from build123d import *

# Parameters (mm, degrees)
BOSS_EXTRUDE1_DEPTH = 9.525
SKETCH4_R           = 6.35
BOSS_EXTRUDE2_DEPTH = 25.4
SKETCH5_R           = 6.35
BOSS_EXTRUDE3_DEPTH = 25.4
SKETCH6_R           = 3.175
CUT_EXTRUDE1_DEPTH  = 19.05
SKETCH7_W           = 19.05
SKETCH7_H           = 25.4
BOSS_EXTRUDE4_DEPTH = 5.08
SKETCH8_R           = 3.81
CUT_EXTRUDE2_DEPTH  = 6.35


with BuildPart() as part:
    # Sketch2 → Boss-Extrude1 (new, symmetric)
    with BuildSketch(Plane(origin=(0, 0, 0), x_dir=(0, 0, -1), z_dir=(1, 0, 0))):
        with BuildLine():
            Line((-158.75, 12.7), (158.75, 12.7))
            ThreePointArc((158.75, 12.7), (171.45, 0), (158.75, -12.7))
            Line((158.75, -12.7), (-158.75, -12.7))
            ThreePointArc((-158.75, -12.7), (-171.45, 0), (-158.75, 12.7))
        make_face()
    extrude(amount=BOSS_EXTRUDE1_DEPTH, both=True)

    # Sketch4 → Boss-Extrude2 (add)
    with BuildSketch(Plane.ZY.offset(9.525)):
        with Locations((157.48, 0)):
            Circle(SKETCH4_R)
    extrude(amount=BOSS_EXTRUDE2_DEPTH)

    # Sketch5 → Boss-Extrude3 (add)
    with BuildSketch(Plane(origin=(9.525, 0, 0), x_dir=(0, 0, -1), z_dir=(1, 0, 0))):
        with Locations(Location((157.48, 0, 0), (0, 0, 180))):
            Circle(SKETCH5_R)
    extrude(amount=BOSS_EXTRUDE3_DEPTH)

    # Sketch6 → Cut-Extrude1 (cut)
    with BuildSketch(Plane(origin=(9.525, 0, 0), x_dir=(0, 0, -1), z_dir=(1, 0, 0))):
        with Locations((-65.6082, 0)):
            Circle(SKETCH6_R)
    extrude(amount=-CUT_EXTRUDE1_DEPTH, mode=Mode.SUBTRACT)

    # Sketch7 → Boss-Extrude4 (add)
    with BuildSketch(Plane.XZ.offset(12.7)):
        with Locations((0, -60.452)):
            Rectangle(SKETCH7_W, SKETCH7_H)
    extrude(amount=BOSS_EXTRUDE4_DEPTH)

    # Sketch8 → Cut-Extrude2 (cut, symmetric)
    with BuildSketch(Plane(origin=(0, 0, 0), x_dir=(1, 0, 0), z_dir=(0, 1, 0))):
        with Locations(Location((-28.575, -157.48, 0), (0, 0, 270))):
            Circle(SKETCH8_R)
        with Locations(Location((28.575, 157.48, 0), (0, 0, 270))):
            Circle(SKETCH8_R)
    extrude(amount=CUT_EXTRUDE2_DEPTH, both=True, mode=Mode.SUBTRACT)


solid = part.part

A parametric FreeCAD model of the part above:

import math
import FreeCAD as App
import Part
import Sketcher

V = App.Vector
Q = App.Units.Quantity


def add_polygon(sketch, points):
    """Adds a closed chain of lines whose ends are joined by coincident constraints."""
    first, n = sketch.GeometryCount, len(points)
    for a, b in zip(points, points[1:] + points[:1]):
        sketch.addGeometry(Part.LineSegment(App.Vector(*a, 0), App.Vector(*b, 0)), False)
    for i in range(n):
        sketch.addConstraint(Sketcher.Constraint("Coincident", first + i, 2, first + (i + 1) % n, 1))

doc = App.newDocument("Part")
params = doc.addObject("Spreadsheet::Sheet", "Params")
for row, (alias, value) in enumerate([
    ("sketch1_radius", "0.5 in"),
    ("sketch1_height", "12.5 in"),
    ("pad1_length", "0.75 in"),
    ("sketch2_diameter", "0.5 in"),
    ("pad2_length", "1 in"),
    ("sketch3_diameter", "0.5 in"),
    ("pad3_length", "1 in"),
    ("sketch4_diameter", "0.25 in"),
    ("pocket1_length", "0.75 in"),
    ("sketch5_height", "1 in"),
    ("sketch5_width", "0.75 in"),
    ("pad4_length", "0.2 in"),
    ("sketch6_diameter", "0.3 in"),
    ("pocket2_length", "0.5 in"),
], start=1):
    params.set(f"A{row}", alias)
    params.set(f"B{row}", "=" + value)
    params.setAlias(f"B{row}", alias)

body = doc.addObject("PartDesign::Body", "Body")

sketch1 = body.newObject("Sketcher::SketchObject", "Sketch")
sketch1.AttachmentSupport = (doc.getObject("YZ_Plane"), [""])
sketch1.MapMode = "FlatFace"
sketch1.addGeometry([
    Part.LineSegment(V(13, -159, 0), V(13, 159, 0)),
    Part.ArcOfCircle(Part.Circle(V(0, 159, 0), V(0, 0, 1), 13), math.radians(0), math.radians(180)),
    Part.LineSegment(V(-13, 159, 0), V(-13, -159, 0)),
    Part.ArcOfCircle(Part.Circle(V(0, -159, 0), V(0, 0, 1), 13), math.radians(180), math.radians(360)),
], False)
sketch1.addConstraint([
    Sketcher.Constraint("Tangent", 0, 2, 1, 1),
    Sketcher.Constraint("Tangent", 1, 2, 2, 1),
    Sketcher.Constraint("Tangent", 2, 2, 3, 1),
    Sketcher.Constraint("Tangent", 3, 2, 0, 1),
    Sketcher.Constraint("Vertical", 0),
    Sketcher.Constraint("Vertical", 2),
    Sketcher.Constraint("Symmetric", 1, 3, 3, 3, -1, 1),
    Sketcher.Constraint("Radius", 1, Q("0.5 in")),
    Sketcher.Constraint("DistanceY", 0, 1, 0, 2, Q("12.5 in")),
])
sketch1.setExpression("Constraints[7]", "Params.sketch1_radius")
sketch1.setExpression("Constraints[8]", "Params.sketch1_height")
pad1 = body.newObject("PartDesign::Pad", "Pad")
pad1.Profile = sketch1
pad1.setExpression("Length", "Params.pad1_length")
pad1.Midplane = True

sketch2 = body.newObject("Sketcher::SketchObject", "Sketch001")
sketch2.AttachmentSupport = (doc.getObject("YZ_Plane"), [""])
sketch2.MapMode = "FlatFace"
sketch2.AttachmentOffset = App.Placement(V(0, 0, -0.375 * 25.4), App.Rotation())
sketch2.addGeometry(Part.Circle(V(0, 157, 0), V(0, 0, 1), 6), False)
sketch2.addConstraint([
    Sketcher.Constraint("PointOnObject", 0, 3, -2),
    Sketcher.Constraint("Diameter", 0, Q("0.5 in")),
    Sketcher.Constraint("DistanceY", -1, 1, 0, 3, Q("6.2 in")),
])
sketch2.setExpression("Constraints[1]", "Params.sketch2_diameter")
pad2 = body.newObject("PartDesign::Pad", "Pad001")
pad2.Profile = sketch2
pad2.setExpression("Length", "Params.pad2_length")
pad2.Reversed = True

sketch3 = body.newObject("Sketcher::SketchObject", "Sketch002")
sketch3.AttachmentSupport = (doc.getObject("YZ_Plane"), [""])
sketch3.MapMode = "FlatFace"
sketch3.AttachmentOffset = App.Placement(V(0, 0, 0.375 * 25.4), App.Rotation())
sketch3.addGeometry(Part.Circle(V(0, -157, 0), V(0, 0, 1), 6), False)
sketch3.addConstraint([
    Sketcher.Constraint("PointOnObject", 0, 3, -2),
    Sketcher.Constraint("Diameter", 0, Q("0.5 in")),
    Sketcher.Constraint("DistanceY", 0, 3, -1, 1, Q("6.2 in")),
])
sketch3.setExpression("Constraints[1]", "Params.sketch3_diameter")
pad3 = body.newObject("PartDesign::Pad", "Pad002")
pad3.Profile = sketch3
pad3.setExpression("Length", "Params.pad3_length")

sketch4 = body.newObject("Sketcher::SketchObject", "Sketch003")
sketch4.AttachmentSupport = (doc.getObject("YZ_Plane"), [""])
sketch4.MapMode = "FlatFace"
sketch4.AttachmentOffset = App.Placement(V(0, 0, 0.375 * 25.4), App.Rotation())
sketch4.addGeometry(Part.Circle(V(0, 65.6, 0), V(0, 0, 1), 3.2), False)
sketch4.addConstraint([
    Sketcher.Constraint("PointOnObject", 0, 3, -2),
    Sketcher.Constraint("Diameter", 0, Q("0.25 in")),
    Sketcher.Constraint("DistanceY", -1, 1, 0, 3, Q("2.583 in")),
])
sketch4.setExpression("Constraints[1]", "Params.sketch4_diameter")
pocket1 = body.newObject("PartDesign::Pocket", "Pocket")
pocket1.Profile = sketch4
pocket1.setExpression("Length", "Params.pocket1_length")

sketch5 = body.newObject("Sketcher::SketchObject", "Sketch004")
sketch5.AttachmentSupport = (doc.getObject("XZ_Plane"), [""])
sketch5.MapMode = "FlatFace"
sketch5.AttachmentOffset = App.Placement(V(0, 0, 0.5 * 25.4), App.Rotation())
add_polygon(sketch5, [(-10, -48), (-10, -73), (10, -73), (10, -48)])
sketch5.addConstraint([
    Sketcher.Constraint("Vertical", 0),
    Sketcher.Constraint("Horizontal", 1),
    Sketcher.Constraint("Vertical", 2),
    Sketcher.Constraint("Horizontal", 3),
    Sketcher.Constraint("DistanceY", 0, 2, 0, 1, Q("1 in")),
    Sketcher.Constraint("DistanceX", 1, 1, 1, 2, Q("0.75 in")),
    Sketcher.Constraint("DistanceY", 0, 2, -1, 1, Q("2.88 in")),
    Sketcher.Constraint("DistanceX", 0, 2, -1, 1, Q("0.375 in")),
])
sketch5.setExpression("Constraints[8]", "Params.sketch5_height")
sketch5.setExpression("Constraints[9]", "Params.sketch5_width")
pad4 = body.newObject("PartDesign::Pad", "Pad003")
pad4.Profile = sketch5
pad4.setExpression("Length", "Params.pad4_length")

sketch6 = body.newObject("Sketcher::SketchObject", "Sketch005")
sketch6.AttachmentSupport = (doc.getObject("XZ_Plane"), [""])
sketch6.MapMode = "FlatFace"
sketch6.addGeometry([
    Part.Circle(V(-28.6, 157.5, 0), V(0, 0, 1), 3.8),
    Part.Circle(V(28.6, -157.5, 0), V(0, 0, 1), 3.8),
], False)
sketch6.addConstraint([
    Sketcher.Constraint("Equal", 0, 1),
    Sketcher.Constraint("Symmetric", 0, 3, 1, 3, -1, 1),
    Sketcher.Constraint("Diameter", 0, Q("0.3 in")),
    Sketcher.Constraint("DistanceY", -1, 1, 0, 3, Q("6.2 in")),
    Sketcher.Constraint("DistanceX", 0, 3, 1, 3, Q("2.25 in")),
])
sketch6.setExpression("Constraints[2]", "Params.sketch6_diameter")
pocket2 = body.newObject("PartDesign::Pocket", "Pocket001")
pocket2.Profile = sketch6
pocket2.setExpression("Length", "Params.pocket2_length")
pocket2.Midplane = True

doc.recompute()
